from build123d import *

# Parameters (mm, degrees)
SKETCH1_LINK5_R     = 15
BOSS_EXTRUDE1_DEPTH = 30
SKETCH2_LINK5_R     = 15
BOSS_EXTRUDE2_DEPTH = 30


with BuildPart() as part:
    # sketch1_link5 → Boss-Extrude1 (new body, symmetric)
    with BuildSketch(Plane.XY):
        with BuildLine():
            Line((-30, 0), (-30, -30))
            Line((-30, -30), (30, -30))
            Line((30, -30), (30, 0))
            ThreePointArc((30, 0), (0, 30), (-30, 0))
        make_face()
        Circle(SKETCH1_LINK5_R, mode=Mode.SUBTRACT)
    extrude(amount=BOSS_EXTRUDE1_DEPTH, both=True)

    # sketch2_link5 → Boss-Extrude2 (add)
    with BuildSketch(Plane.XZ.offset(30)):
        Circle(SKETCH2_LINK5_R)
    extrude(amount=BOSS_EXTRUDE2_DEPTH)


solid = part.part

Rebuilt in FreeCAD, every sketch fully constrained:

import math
import FreeCAD as App
import Part
import Sketcher
from FreeCAD import Vector

doc = App.newDocument("Part")
body = doc.addObject("PartDesign::Body", "Body")

sketch1 = body.newObject("Sketcher::SketchObject", "Sketch")
sketch1.AttachmentSupport = (doc.getObject("XY_Plane"), [""])
sketch1.MapMode = "FlatFace"
sketch1.addGeometry(Part.LineSegment(Vector(-30, 0, 0), Vector(-30, -30, 0)), False)
sketch1.addGeometry(Part.LineSegment(Vector(-30, -30, 0), Vector(30, -30, 0)), False)
sketch1.addGeometry(Part.LineSegment(Vector(30, -30, 0), Vector(30, 0, 0)), False)
sketch1.addGeometry(Part.ArcOfCircle(Part.Circle(Vector(0, 0, 0), Vector(0, 0, 1), 30), math.radians(0), math.radians(180)), False)
sketch1.addGeometry(Part.Circle(Vector(0, 0, 0), Vector(0, 0, 1), 15), False)
sketch1.addConstraint(Sketcher.Constraint("Coincident", 0, 2, 1, 1))
sketch1.addConstraint(Sketcher.Constraint("Coincident", 1, 2, 2, 1))
sketch1.addConstraint(Sketcher.Constraint("Tangent", 2, 2, 3, 1))
sketch1.addConstraint(Sketcher.Constraint("Tangent", 3, 2, 0, 1))
sketch1.addConstraint(Sketcher.Constraint("Vertical", 0))
sketch1.addConstraint(Sketcher.Constraint("Horizontal", 1))
sketch1.addConstraint(Sketcher.Constraint("Vertical", 2))
sketch1.addConstraint(Sketcher.Constraint("Coincident", 3, 3, -1, 1))
sketch1.addConstraint(Sketcher.Constraint("Coincident", 4, 3, -1, 1))
sketch1.addConstraint(Sketcher.Constraint("Diameter", 4, 30.0))
sketch1.addConstraint(Sketcher.Constraint("Radius", 3, 30.0))
sketch1.addConstraint(Sketcher.Constraint("DistanceY", 0, 2, 0, 1, 30.0))
pad1 = body.newObject("PartDesign::Pad", "Pad")
pad1.Profile = sketch1
pad1.Length = 60
pad1.Midplane = True

sketch2 = body.newObject("Sketcher::SketchObject", "Sketch001")
sketch2.AttachmentSupport = (doc.getObject("XZ_Plane"), [""])
sketch2.MapMode = "FlatFace"
sketch2.AttachmentOffset = App.Placement(Vector(0, 0, 30), App.Rotation())
sketch2.addGeometry(Part.Circle(Vector(0, 0, 0), Vector(0, 0, 1), 15), False)
sketch2.addConstraint(Sketcher.Constraint("Coincident", 0, 3, -1, 1))
sketch2.addConstraint(Sketcher.Constraint("Diameter", 0, 30.0))
pad2 = body.newObject("PartDesign::Pad", "Pad001")
pad2.Profile = sketch2
pad2.Length = 30

doc.recompute()
